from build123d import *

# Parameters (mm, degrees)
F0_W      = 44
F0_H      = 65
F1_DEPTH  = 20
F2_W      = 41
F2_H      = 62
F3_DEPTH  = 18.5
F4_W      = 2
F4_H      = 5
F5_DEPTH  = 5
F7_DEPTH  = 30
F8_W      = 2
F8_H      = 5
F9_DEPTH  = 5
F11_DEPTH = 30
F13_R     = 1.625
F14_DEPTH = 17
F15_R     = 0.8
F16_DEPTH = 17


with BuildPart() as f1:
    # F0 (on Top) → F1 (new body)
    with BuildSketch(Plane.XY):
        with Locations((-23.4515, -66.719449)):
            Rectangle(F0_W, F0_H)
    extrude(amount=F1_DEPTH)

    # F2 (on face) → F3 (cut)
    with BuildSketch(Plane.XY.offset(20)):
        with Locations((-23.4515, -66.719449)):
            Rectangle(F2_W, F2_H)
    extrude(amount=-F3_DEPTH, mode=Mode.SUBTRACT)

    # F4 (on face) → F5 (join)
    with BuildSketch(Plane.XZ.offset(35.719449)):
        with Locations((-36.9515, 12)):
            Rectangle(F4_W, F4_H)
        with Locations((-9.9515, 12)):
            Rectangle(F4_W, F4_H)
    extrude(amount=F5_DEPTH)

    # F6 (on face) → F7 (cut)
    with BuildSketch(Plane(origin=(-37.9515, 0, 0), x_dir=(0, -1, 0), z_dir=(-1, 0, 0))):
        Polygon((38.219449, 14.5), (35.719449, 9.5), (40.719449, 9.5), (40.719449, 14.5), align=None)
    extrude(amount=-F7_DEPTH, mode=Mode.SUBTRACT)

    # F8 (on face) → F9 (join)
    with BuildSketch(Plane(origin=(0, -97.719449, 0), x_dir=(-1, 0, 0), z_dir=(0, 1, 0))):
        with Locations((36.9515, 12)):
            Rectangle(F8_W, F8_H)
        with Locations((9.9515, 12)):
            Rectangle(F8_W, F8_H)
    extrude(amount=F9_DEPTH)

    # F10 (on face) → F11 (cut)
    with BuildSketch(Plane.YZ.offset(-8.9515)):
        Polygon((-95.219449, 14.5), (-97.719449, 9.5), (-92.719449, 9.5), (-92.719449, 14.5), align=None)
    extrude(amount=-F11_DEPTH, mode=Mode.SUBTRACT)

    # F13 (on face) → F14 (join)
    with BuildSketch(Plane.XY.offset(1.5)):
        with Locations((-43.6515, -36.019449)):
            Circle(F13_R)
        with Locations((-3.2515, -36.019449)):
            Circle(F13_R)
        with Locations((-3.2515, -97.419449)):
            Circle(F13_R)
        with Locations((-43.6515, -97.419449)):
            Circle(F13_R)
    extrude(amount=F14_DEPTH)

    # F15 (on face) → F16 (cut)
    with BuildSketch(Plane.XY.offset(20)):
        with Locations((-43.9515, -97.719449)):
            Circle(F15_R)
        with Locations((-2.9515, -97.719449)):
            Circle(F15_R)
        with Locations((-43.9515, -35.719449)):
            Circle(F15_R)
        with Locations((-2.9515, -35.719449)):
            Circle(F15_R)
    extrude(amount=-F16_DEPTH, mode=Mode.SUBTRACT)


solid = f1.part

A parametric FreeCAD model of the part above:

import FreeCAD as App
import Part
import Sketcher
from FreeCAD import Vector
Q = App.Units.Quantity

doc = App.newDocument("Part")
body = doc.addObject("PartDesign::Body", "Body")

sketch1 = body.newObject("Sketcher::SketchObject", "Sketch")
sketch1.AttachmentSupport = (doc.getObject("XY_Plane"), [""])
sketch1.MapMode = "FlatFace"
sketch1.addGeometry(Part.LineSegment(Vector(-45.4515, -34.219449, 0), Vector(-45.4515, -99.219449, 0)), False)
sketch1.addGeometry(Part.LineSegment(Vector(-45.4515, -99.219449, 0), Vector(-1.4515, -99.219449, 0)), False)
sketch1.addGeometry(Part.LineSegment(Vector(-1.4515, -99.219449, 0), Vector(-1.4515, -34.219449, 0)), False)
sketch1.addGeometry(Part.LineSegment(Vector(-1.4515, -34.219449, 0), Vector(-45.4515, -34.219449, 0)), False)
sketch1.addConstraint(Sketcher.Constraint("Coincident", 0, 2, 1, 1))
sketch1.addConstraint(Sketcher.Constraint("Coincident", 1, 2, 2, 1))
sketch1.addConstraint(Sketcher.Constraint("Coincident", 2, 2, 3, 1))
sketch1.addConstraint(Sketcher.Constraint("Coincident", 3, 2, 0, 1))
sketch1.addConstraint(Sketcher.Constraint("Vertical", 0))
sketch1.addConstraint(Sketcher.Constraint("Horizontal", 1))
sketch1.addConstraint(Sketcher.Constraint("Vertical", 2))
sketch1.addConstraint(Sketcher.Constraint("Horizontal", 3))
sketch1.addConstraint(Sketcher.Constraint("DistanceX", 1, 1, 1, 2, Q("44 mm")))
sketch1.addConstraint(Sketcher.Constraint("DistanceY", 0, 2, 0, 1, Q("65 mm")))
sketch1.addConstraint(Sketcher.Constraint("DistanceX", 0, 2, -1, 1, Q("45.4515 mm")))
sketch1.addConstraint(Sketcher.Constraint("DistanceY", 0, 2, -1, 1, Q("99.219449 mm")))
pad1 = body.newObject("PartDesign::Pad", "Pad")
pad1.Profile = sketch1
pad1.Length = 20

sketch2 = body.newObject("Sketcher::SketchObject", "Sketch001")
sketch2.AttachmentSupport = (doc.getObject("XY_Plane"), [""])
sketch2.MapMode = "FlatFace"
sketch2.AttachmentOffset = App.Placement(Vector(0, 0, 20), App.Rotation())
sketch2.addGeometry(Part.LineSegment(Vector(-43.9515, -35.719449, 0), Vector(-43.9515, -97.719449, 0)), False)
sketch2.addGeometry(Part.LineSegment(Vector(-43.9515, -97.719449, 0), Vector(-2.9515, -97.719449, 0)), False)
sketch2.addGeometry(Part.LineSegment(Vector(-2.9515, -97.719449, 0), Vector(-2.9515, -35.719449, 0)), False)
sketch2.addGeometry(Part.LineSegment(Vector(-2.9515, -35.719449, 0), Vector(-43.9515, -35.719449, 0)), False)
sketch2.addConstraint(Sketcher.Constraint("Coincident", 0, 2, 1, 1))
sketch2.addConstraint(Sketcher.Constraint("Coincident", 1, 2, 2, 1))
sketch2.addConstraint(Sketcher.Constraint("Coincident", 2, 2, 3, 1))
sketch2.addConstraint(Sketcher.Constraint("Coincident", 3, 2, 0, 1))
sketch2.addConstraint(Sketcher.Constraint("Vertical", 0))
sketch2.addConstraint(Sketcher.Constraint("Horizontal", 1))
sketch2.addConstraint(Sketcher.Constraint("Vertical", 2))
sketch2.addConstraint(Sketcher.Constraint("Horizontal", 3))
sketch2.addConstraint(Sketcher.Constraint("DistanceX", 1, 1, 1, 2, Q("41 mm")))
sketch2.addConstraint(Sketcher.Constraint("DistanceY", 0, 2, 0, 1, Q("62 mm")))
sketch2.addConstraint(Sketcher.Constraint("DistanceX", 0, 2, -1, 1, Q("43.9515 mm")))
sketch2.addConstraint(Sketcher.Constraint("DistanceY", 0, 2, -1, 1, Q("97.719449 mm")))
pocket1 = body.newObject("PartDesign::Pocket", "Pocket")
pocket1.Profile = sketch2
pocket1.Length = 18.5

sketch3 = body.newObject("Sketcher::SketchObject", "Sketch002")
sketch3.AttachmentSupport = (doc.getObject("XZ_Plane"), [""])
sketch3.MapMode = "FlatFace"
sketch3.AttachmentOffset = App.Placement(Vector(0, 0, 35.719449), App.Rotation())
sketch3.addGeometry(Part.LineSegment(Vector(-37.9515, 14.5, 0), Vector(-37.9515, 9.5, 0)), False)
sketch3.addGeometry(Part.LineSegment(Vector(-37.9515, 9.5, 0), Vector(-35.9515, 9.5, 0)), False)
sketch3.addGeometry(Part.LineSegment(Vector(-35.9515, 9.5, 0), Vector(-35.9515, 14.5, 0)), False)
sketch3.addGeometry(Part.LineSegment(Vector(-35.9515, 14.5, 0), Vector(-37.9515, 14.5, 0)), False)
sketch3.addGeometry(Part.LineSegment(Vector(-10.9515, 14.5, 0), Vector(-10.9515, 9.5, 0)), False)
sketch3.addGeometry(Part.LineSegment(Vector(-10.9515, 9.5, 0), Vector(-8.9515, 9.5, 0)), False)
sketch3.addGeometry(Part.LineSegment(Vector(-8.9515, 9.5, 0), Vector(-8.9515, 14.5, 0)), False)
sketch3.addGeometry(Part.LineSegment(Vector(-8.9515, 14.5, 0), Vector(-10.9515, 14.5, 0)), False)
sketch3.addConstraint(Sketcher.Constraint("Coincident", 0, 2, 1, 1))
sketch3.addConstraint(Sketcher.Constraint("Coincident", 1, 2, 2, 1))
sketch3.addConstraint(Sketcher.Constraint("Coincident", 2, 2, 3, 1))
sketch3.addConstraint(Sketcher.Constraint("Coincident", 3, 2, 0, 1))
sketch3.addConstraint(Sketcher.Constraint("Coincident", 4, 2, 5, 1))
sketch3.addConstraint(Sketcher.Constraint("Coincident", 5, 2, 6, 1))
sketch3.addConstraint(Sketcher.Constraint("Coincident", 6, 2, 7, 1))
sketch3.addConstraint(Sketcher.Constraint("Coincident", 7, 2, 4, 1))
sketch3.addConstraint(Sketcher.Constraint("Vertical", 0))
sketch3.addConstraint(Sketcher.Constraint("Horizontal", 1))
sketch3.addConstraint(Sketcher.Constraint("Vertical", 2))
sketch3.addConstraint(Sketcher.Constraint("Horizontal", 3))
sketch3.addConstraint(Sketcher.Constraint("Vertical", 4))
sketch3.addConstraint(Sketcher.Constraint("Horizontal", 5))
sketch3.addConstraint(Sketcher.Constraint("Vertical", 6))
sketch3.addConstraint(Sketcher.Constraint("Horizontal", 7))
sketch3.addConstraint(Sketcher.Constraint("Horizontal", 1, 2, 4, 2))
sketch3.addConstraint(Sketcher.Constraint("Horizontal", 3, 2, 6, 2))
sketch3.addConstraint(Sketcher.Constraint("Equal", 3, 5))
sketch3.addConstraint(Sketcher.Constraint("DistanceX", 1, 1, 1, 2, Q("2 mm")))
sketch3.addConstraint(Sketcher.Constraint("DistanceY", 0, 2, 0, 1, Q("5 mm")))
sketch3.addConstraint(Sketcher.Constraint("DistanceX", 1, 2, 4, 2, Q("25 mm")))
sketch3.addConstraint(Sketcher.Constraint("DistanceY", -1, 1, 0, 2, Q("9.5 mm")))
sketch3.addConstraint(Sketcher.Constraint("DistanceX", 0, 2, -1, 1, Q("37.9515 mm")))
pad2 = body.newObject("PartDesign::Pad", "Pad001")
pad2.Profile = sketch3
pad2.Length = 5

sketch4 = body.newObject("Sketcher::SketchObject", "Sketch003")
sketch4.AttachmentSupport = (doc.getObject("YZ_Plane"), [""])
sketch4.MapMode = "FlatFace"
sketch4.AttachmentOffset = App.Placement(Vector(0, 0, -37.9515), App.Rotation())
sketch4.addGeometry(Part.LineSegment(Vector(-38.219449, 14.5, 0), Vector(-35.719449, 9.5, 0)), False)
sketch4.addGeometry(Part.LineSegment(Vector(-35.719449, 9.5, 0), Vector(-40.719449, 9.5, 0)), False)
sketch4.addGeometry(Part.LineSegment(Vector(-40.719449, 9.5, 0), Vector(-40.719449, 14.5, 0)), False)
sketch4.addGeometry(Part.LineSegment(Vector(-40.719449, 14.5, 0), Vector(-38.219449, 14.5, 0)), False)
sketch4.addConstraint(Sketcher.Constraint("Coincident", 0, 2, 1, 1))
sketch4.addConstraint(Sketcher.Constraint("Coincident", 1, 2, 2, 1))
sketch4.addConstraint(Sketcher.Constraint("Coincident", 2, 2, 3, 1))
sketch4.addConstraint(Sketcher.Constraint("Coincident", 3, 2, 0, 1))
sketch4.addConstraint(Sketcher.Constraint("Horizontal", 1))
sketch4.addConstraint(Sketcher.Constraint("Vertical", 2))
sketch4.addConstraint(Sketcher.Constraint("Horizontal", 3))
sketch4.addConstraint(Sketcher.Constraint("Equal", 1, 2))
sketch4.addConstraint(Sketcher.Constraint("DistanceX", 1, 2, 1, 1, Q("5 mm")))
sketch4.addConstraint(Sketcher.Constraint("DistanceX", 3, 1, 3, 2, Q("2.5 mm")))
sketch4.addConstraint(Sketcher.Constraint("DistanceY", -1, 1, 0, 2, Q("9.5 mm")))
sketch4.addConstraint(Sketcher.Constraint("DistanceX", 0, 2, -1, 1, Q("35.719449 mm")))
pocket2 = body.newObject("PartDesign::Pocket", "Pocket001")
pocket2.Profile = sketch4
pocket2.Length = 30
pocket2.Reversed = True

sketch5 = body.newObject("Sketcher::SketchObject", "Sketch004")
sketch5.AttachmentSupport = (doc.getObject("XZ_Plane"), [""])
sketch5.MapMode = "FlatFace"
sketch5.AttachmentOffset = App.Placement(Vector(0, 0, 97.719449), App.Rotation())
sketch5.addGeometry(Part.LineSegment(Vector(-35.9515, 14.5, 0), Vector(-35.9515, 9.5, 0)), False)
sketch5.addGeometry(Part.LineSegment(Vector(-35.9515, 9.5, 0), Vector(-37.9515, 9.5, 0)), False)
sketch5.addGeometry(Part.LineSegment(Vector(-37.9515, 9.5, 0), Vector(-37.9515, 14.5, 0)), False)
sketch5.addGeometry(Part.LineSegment(Vector(-37.9515, 14.5, 0), Vector(-35.9515, 14.5, 0)), False)
sketch5.addGeometry(Part.LineSegment(Vector(-8.9515, 14.5, 0), Vector(-8.9515, 9.5, 0)), False)
sketch5.addGeometry(Part.LineSegment(Vector(-8.9515, 9.5, 0), Vector(-10.9515, 9.5, 0)), False)
sketch5.addGeometry(Part.LineSegment(Vector(-10.9515, 9.5, 0), Vector(-10.9515, 14.5, 0)), False)
sketch5.addGeometry(Part.LineSegment(Vector(-10.9515, 14.5, 0), Vector(-8.9515, 14.5, 0)), False)
sketch5.addConstraint(Sketcher.Constraint("Coincident", 0, 2, 1, 1))
sketch5.addConstraint(Sketcher.Constraint("Coincident", 1, 2, 2, 1))
sketch5.addConstraint(Sketcher.Constraint("Coincident", 2, 2, 3, 1))
sketch5.addConstraint(Sketcher.Constraint("Coincident", 3, 2, 0, 1))
sketch5.addConstraint(Sketcher.Constraint("Coincident", 4, 2, 5, 1))
sketch5.addConstraint(Sketcher.Constraint("Coincident", 5, 2, 6, 1))
sketch5.addConstraint(Sketcher.Constraint("Coincident", 6, 2, 7, 1))
sketch5.addConstraint(Sketcher.Constraint("Coincident", 7, 2, 4, 1))
sketch5.addConstraint(Sketcher.Constraint("Vertical", 0))
sketch5.addConstraint(Sketcher.Constraint("Horizontal", 1))
sketch5.addConstraint(Sketcher.Constraint("Vertical", 2))
sketch5.addConstraint(Sketcher.Constraint("Horizontal", 3))
sketch5.addConstraint(Sketcher.Constraint("Vertical", 4))
sketch5.addConstraint(Sketcher.Constraint("Horizontal", 5))
sketch5.addConstraint(Sketcher.Constraint("Vertical", 6))
sketch5.addConstraint(Sketcher.Constraint("Horizontal", 7))
sketch5.addConstraint(Sketcher.Constraint("Horizontal", 1, 2, 4, 2))
sketch5.addConstraint(Sketcher.Constraint("Horizontal", 3, 2, 6, 2))
sketch5.addConstraint(Sketcher.Constraint("Equal", 3, 5))
sketch5.addConstraint(Sketcher.Constraint("DistanceX", 1, 2, 1, 1, Q("2 mm")))
sketch5.addConstraint(Sketcher.Constraint("DistanceY", 0, 2, 0, 1, Q("5 mm")))
sketch5.addConstraint(Sketcher.Constraint("DistanceX", 0, 2, 4, 2, Q("27 mm")))
sketch5.addConstraint(Sketcher.Constraint("DistanceY", -1, 1, 0, 2, Q("9.5 mm")))
sketch5.addConstraint(Sketcher.Constraint("DistanceX", 0, 2, -1, 1, Q("35.9515 mm")))
pad3 = body.newObject("PartDesign::Pad", "Pad002")
pad3.Profile = sketch5
pad3.Length = 5
pad3.Reversed = True

sketch6 = body.newObject("Sketcher::SketchObject", "Sketch005")
sketch6.AttachmentSupport = (doc.getObject("YZ_Plane"), [""])
sketch6.MapMode = "FlatFace"
sketch6.AttachmentOffset = App.Placement(Vector(0, 0, -8.9515), App.Rotation())
sketch6.addGeometry(Part.LineSegment(Vector(-95.219449, 14.5, 0), Vector(-97.719449, 9.5, 0)), False)
sketch6.addGeometry(Part.LineSegment(Vector(-97.719449, 9.5, 0), Vector(-92.719449, 9.5, 0)), False)
sketch6.addGeometry(Part.LineSegment(Vector(-92.719449, 9.5, 0), Vector(-92.719449, 14.5, 0)), False)
sketch6.addGeometry(Part.LineSegment(Vector(-92.719449, 14.5, 0), Vector(-95.219449, 14.5, 0)), False)
sketch6.addConstraint(Sketcher.Constraint("Coincident", 0, 2, 1, 1))
sketch6.addConstraint(Sketcher.Constraint("Coincident", 1, 2, 2, 1))
sketch6.addConstraint(Sketcher.Constraint("Coincident", 2, 2, 3, 1))
sketch6.addConstraint(Sketcher.Constraint("Coincident", 3, 2, 0, 1))
sketch6.addConstraint(Sketcher.Constraint("Horizontal", 1))
sketch6.addConstraint(Sketcher.Constraint("Vertical", 2))
sketch6.addConstraint(Sketcher.Constraint("Horizontal", 3))
sketch6.addConstraint(Sketcher.Constraint("Equal", 1, 2))
sketch6.addConstraint(Sketcher.Constraint("DistanceX", 1, 1, 1, 2, Q("5 mm")))
sketch6.addConstraint(Sketcher.Constraint("DistanceX", 3, 2, 3, 1, Q("2.5 mm")))
sketch6.addConstraint(Sketcher.Constraint("DistanceY", -1, 1, 0, 2, Q("9.5 mm")))
sketch6.addConstraint(Sketcher.Constraint("DistanceX", 0, 2, -1, 1, Q("97.719449 mm")))
pocket3 = body.newObject("PartDesign::Pocket", "Pocket002")
pocket3.Profile = sketch6
pocket3.Length = 30

sketch7 = body.newObject("Sketcher::SketchObject", "Sketch006")
sketch7.AttachmentSupport = (doc.getObject("XY_Plane"), [""])
sketch7.MapMode = "FlatFace"
sketch7.AttachmentOffset = App.Placement(Vector(0, 0, 1.5), App.Rotation())
sketch7.addGeometry(Part.Circle(Vector(-43.6515, -36.019449, 0), Vector(0, 0, 1), 1.625), False)
sketch7.addGeometry(Part.Circle(Vector(-3.2515, -36.019449, 0), Vector(0, 0, 1), 1.625), False)
sketch7.addGeometry(Part.Circle(Vector(-3.2515, -97.419449, 0), Vector(0, 0, 1), 1.625), False)
sketch7.addGeometry(Part.Circle(Vector(-43.6515, -97.419449, 0), Vector(0, 0, 1), 1.625), False)
sketch7.addConstraint(Sketcher.Constraint("Equal", 0, 1))
sketch7.addConstraint(Sketcher.Constraint("Equal", 1, 2))
sketch7.addConstraint(Sketcher.Constraint("Equal", 2, 3))
sketch7.addConstraint(Sketcher.Constraint("Horizontal", 0, 3, 1, 3))
sketch7.addConstraint(Sketcher.Constraint("Horizontal", 2, 3, 3, 3))
sketch7.addConstraint(Sketcher.Constraint("Vertical", 1, 3, 2, 3))
sketch7.addConstraint(Sketcher.Constraint("Vertical", 0, 3, 3, 3))
sketch7.addConstraint(Sketcher.Constraint("Diameter", 0, Q("3.25 mm")))
sketch7.addConstraint(Sketcher.Constraint("DistanceX", 0, 3, 1, 3, Q("40.4 mm")))
sketch7.addConstraint(Sketcher.Constraint("DistanceY", 2, 3, 1, 3, Q("61.4 mm")))
sketch7.addConstraint(Sketcher.Constraint("DistanceX", 0, 3, -1, 1, Q("43.6515 mm")))
sketch7.addConstraint(Sketcher.Constraint("DistanceY", 0, 3, -1, 1, Q("36.019449 mm")))
pad4 = body.newObject("PartDesign::Pad", "Pad003")
pad4.Profile = sketch7
pad4.Length = 17

sketch8 = body.newObject("Sketcher::SketchObject", "Sketch007")
sketch8.AttachmentSupport = (doc.getObject("XY_Plane"), [""])
sketch8.MapMode = "FlatFace"
sketch8.AttachmentOffset = App.Placement(Vector(0, 0, 20), App.Rotation())
sketch8.addGeometry(Part.Circle(Vector(-43.9515, -97.719449, 0), Vector(0, 0, 1), 0.8), False)
sketch8.addGeometry(Part.Circle(Vector(-2.9515, -97.719449, 0), Vector(0, 0, 1), 0.8), False)
sketch8.addGeometry(Part.Circle(Vector(-43.9515, -35.719449, 0), Vector(0, 0, 1), 0.8), False)
sketch8.addGeometry(Part.Circle(Vector(-2.9515, -35.719449, 0), Vector(0, 0, 1), 0.8), False)
sketch8.addConstraint(Sketcher.Constraint("Equal", 0, 1))
sketch8.addConstraint(Sketcher.Constraint("Equal", 1, 2))
sketch8.addConstraint(Sketcher.Constraint("Equal", 2, 3))
sketch8.addConstraint(Sketcher.Constraint("Horizontal", 0, 3, 1, 3))
sketch8.addConstraint(Sketcher.Constraint("Horizontal", 2, 3, 3, 3))
sketch8.addConstraint(Sketcher.Constraint("Vertical", 0, 3, 2, 3))
sketch8.addConstraint(Sketcher.Constraint("Vertical", 1, 3, 3, 3))
sketch8.addConstraint(Sketcher.Constraint("Diameter", 0, Q("1.6 mm")))
sketch8.addConstraint(Sketcher.Constraint("DistanceX", 0, 3, 1, 3, Q("41 mm")))
sketch8.addConstraint(Sketcher.Constraint("DistanceY", 0, 3, 2, 3, Q("62 mm")))
sketch8.addConstraint(Sketcher.Constraint("DistanceX", 0, 3, -1, 1, Q("43.9515 mm")))
sketch8.addConstraint(Sketcher.Constraint("DistanceY", 0, 3, -1, 1, Q("97.719449 mm")))
pocket4 = body.newObject("PartDesign::Pocket", "Pocket003")
pocket4.Profile = sketch8
pocket4.Length = 17

doc.recompute()
